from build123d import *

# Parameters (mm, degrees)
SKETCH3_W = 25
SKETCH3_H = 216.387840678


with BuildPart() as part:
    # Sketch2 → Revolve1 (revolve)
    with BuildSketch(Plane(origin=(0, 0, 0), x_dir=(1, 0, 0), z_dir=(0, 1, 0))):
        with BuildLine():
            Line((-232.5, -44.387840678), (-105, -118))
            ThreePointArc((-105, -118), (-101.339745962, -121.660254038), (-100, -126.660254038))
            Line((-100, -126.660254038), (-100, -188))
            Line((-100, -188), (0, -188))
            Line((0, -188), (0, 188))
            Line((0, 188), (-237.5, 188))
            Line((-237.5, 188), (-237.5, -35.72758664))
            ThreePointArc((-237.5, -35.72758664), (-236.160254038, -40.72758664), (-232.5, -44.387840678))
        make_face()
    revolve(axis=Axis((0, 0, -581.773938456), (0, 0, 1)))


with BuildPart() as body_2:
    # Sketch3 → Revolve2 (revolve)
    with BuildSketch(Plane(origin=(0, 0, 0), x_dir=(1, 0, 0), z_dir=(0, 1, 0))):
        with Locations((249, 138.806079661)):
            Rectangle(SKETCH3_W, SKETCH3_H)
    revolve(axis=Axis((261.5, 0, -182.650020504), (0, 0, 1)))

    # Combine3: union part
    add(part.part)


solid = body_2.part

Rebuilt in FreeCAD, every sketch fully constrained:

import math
import FreeCAD as App
import Part
import Sketcher
from FreeCAD import Vector
Q = App.Units.Quantity


def add_polygon(sketch, points):
    """Adds a closed chain of lines whose ends are joined by coincident constraints."""
    first, n = sketch.GeometryCount, len(points)
    for a, b in zip(points, points[1:] + points[:1]):
        sketch.addGeometry(Part.LineSegment(App.Vector(*a, 0), App.Vector(*b, 0)), False)
    for i in range(n):
        sketch.addConstraint(Sketcher.Constraint("Coincident", first + i, 2, first + (i + 1) % n, 1))

doc = App.newDocument("Part")
body = doc.addObject("PartDesign::Body", "Body")

# Sketch on XZ plane
sketch1 = body.newObject("Sketcher::SketchObject", "Sketch")
sketch1.AttachmentSupport = (doc.getObject("XZ_Plane"), [""])
sketch1.MapMode = "FlatFace"
sketch1.addGeometry([
    Part.LineSegment(Vector(-232, 44, 0), Vector(-105, 118, 0)),  # 0
    Part.ArcOfCircle(Part.Circle(Vector(-110, 127, 0), Vector(0, 0, 1), 10), math.radians(-60), math.radians(0)),  # 1
    Part.LineSegment(Vector(-100, 127, 0), Vector(-100, 188, 0)),  # 2
    Part.LineSegment(Vector(-100, 188, 0), Vector(0, 188, 0)),  # 3
    Part.LineSegment(Vector(0, 188, 0), Vector(0, -188, 0)),  # 4
    Part.LineSegment(Vector(0, -188, 0), Vector(-238, -188, 0)),  # 5
    Part.LineSegment(Vector(-238, -188, 0), Vector(-238, 36, 0)),  # 6
    Part.ArcOfCircle(Part.Circle(Vector(-228, 36, 0), Vector(0, 0, 1), 10), math.radians(120), math.radians(180)),  # 7
], False)
sketch1.addConstraint([
    Sketcher.Constraint("Tangent", 0, 2, 1, 1),
    Sketcher.Constraint("Tangent", 1, 2, 2, 1),
    Sketcher.Constraint("Coincident", 2, 2, 3, 1),
    Sketcher.Constraint("Coincident", 3, 2, 4, 1),
    Sketcher.Constraint("Coincident", 4, 2, 5, 1),
    Sketcher.Constraint("Coincident", 5, 2, 6, 1),
    Sketcher.Constraint("Tangent", 6, 2, 7, 2),
    Sketcher.Constraint("Tangent", 7, 1, 0, 1),
    Sketcher.Constraint("Vertical", 2),
    Sketcher.Constraint("Horizontal", 3),
    Sketcher.Constraint("Vertical", 4),
    Sketcher.Constraint("Horizontal", 5),
    Sketcher.Constraint("Vertical", 6),
    Sketcher.Constraint("Equal", 1, 7),
    Sketcher.Constraint("Symmetric", 3, 2, 4, 2, -1, 1),
    Sketcher.Constraint("Radius", 1, Q("10 mm")),
    Sketcher.Constraint("DistanceX", 3, 1, 3, 2, Q("100 mm")),
    Sketcher.Constraint("DistanceY", 4, 2, 4, 1, Q("376 mm")),
    Sketcher.Constraint("Angle", 0, Q("30 deg")),
    Sketcher.Constraint("DistanceX", 5, 2, 5, 1, Q("237.5 mm")),
    Sketcher.Constraint("DistanceY", -1, 1, 0, 2, Q("118 mm")),
])
revolution = body.newObject("PartDesign::Revolution", "Revolution")
revolution.Profile = sketch1
revolution.ReferenceAxis = (sketch1, ["V_Axis"])
revolution.Angle = 360
body2 = doc.addObject("PartDesign::Body", "Body001")

# Sketch on XZ plane
sketch2 = body2.newObject("Sketcher::SketchObject", "Sketch001")
sketch2.AttachmentSupport = (doc.getObject("XZ_Plane001"), [""])
sketch2.MapMode = "FlatFace"
add_polygon(sketch2, [(236, -247), (236, -31), (262, -31), (262, -247)])  # lines 0-3
sketch2.addGeometry(Part.LineSegment(Vector(262, -247, 0), Vector(262, -31, 0)), True)  # axis
sketch2.addConstraint([
    Sketcher.Constraint("Vertical", 0),
    Sketcher.Constraint("Horizontal", 1),
    Sketcher.Constraint("Vertical", 2),
    Sketcher.Constraint("Horizontal", 3),
    Sketcher.Constraint("Vertical", 4),
    Sketcher.Constraint("Coincident", 4, 1, 2, 2),
    Sketcher.Constraint("Horizontal", 0, 2, 4, 2),
    Sketcher.Constraint("DistanceX", 1, 1, 1, 2, Q("25 mm")),
    Sketcher.Constraint("DistanceY", 2, 2, -1, 1, Q("247 mm")),
    Sketcher.Constraint("DistanceX", -1, 1, 0, 2, Q("236.5 mm")),
    Sketcher.Constraint("DistanceY", 0, 1, 0, 2, Q("216.387841 mm")),
])
revolution2 = body2.newObject("PartDesign::Revolution", "Revolution001")
revolution2.Profile = sketch2
revolution2.ReferenceAxis = (sketch2, ["Axis0"])
revolution2.Angle = 360
doc.recompute()

boolean = body2.newObject("PartDesign::Boolean", "Boolean")
boolean.Type = "Fuse"
boolean.addObjects([body])

doc.recompute()
